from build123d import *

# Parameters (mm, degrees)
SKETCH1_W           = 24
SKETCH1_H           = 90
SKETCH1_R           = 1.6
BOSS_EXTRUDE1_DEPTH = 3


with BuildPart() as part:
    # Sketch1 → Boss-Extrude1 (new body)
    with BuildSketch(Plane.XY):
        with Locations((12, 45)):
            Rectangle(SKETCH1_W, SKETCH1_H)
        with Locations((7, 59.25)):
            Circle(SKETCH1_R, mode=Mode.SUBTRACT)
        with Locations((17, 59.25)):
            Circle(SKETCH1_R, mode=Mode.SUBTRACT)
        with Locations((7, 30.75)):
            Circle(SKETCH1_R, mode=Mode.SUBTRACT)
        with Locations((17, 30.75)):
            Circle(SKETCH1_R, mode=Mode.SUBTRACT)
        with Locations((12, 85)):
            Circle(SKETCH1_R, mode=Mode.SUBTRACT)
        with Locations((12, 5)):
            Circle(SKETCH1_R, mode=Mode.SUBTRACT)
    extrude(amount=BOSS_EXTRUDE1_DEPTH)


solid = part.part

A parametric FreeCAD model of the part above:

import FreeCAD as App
import Part
import Sketcher
Q = App.Units.Quantity

doc = App.newDocument("Part")
body = doc.addObject("PartDesign::Body", "Body")

# Sketch on XY plane
sketch1 = body.newObject("Sketcher::SketchObject", "Sketch")
sketch1.AttachmentSupport = (doc.getObject("XY_Plane"), [""])
sketch1.MapMode = "FlatFace"
sketch1.addGeometry([
    Part.LineSegment(App.Vector(0, 90, 0), App.Vector(0, 0, 0)),  # 0
    Part.LineSegment(App.Vector(0, 0, 0), App.Vector(24, 0, 0)),  # 1
    Part.LineSegment(App.Vector(24, 0, 0), App.Vector(24, 90, 0)),  # 2
    Part.LineSegment(App.Vector(24, 90, 0), App.Vector(0, 90, 0)),  # 3
    Part.Circle(App.Vector(7, 30.75, 0), App.Vector(0, 0, 1), 1.6),  # 4
    Part.Circle(App.Vector(12, 5, 0), App.Vector(0, 0, 1), 1.6),  # 5
    Part.Circle(App.Vector(17, 30.75, 0), App.Vector(0, 0, 1), 1.6),  # 6
    Part.Circle(App.Vector(7, 59.25, 0), App.Vector(0, 0, 1), 1.6),  # 7
    Part.Circle(App.Vector(17, 59.25, 0), App.Vector(0, 0, 1), 1.6),  # 8
    Part.Circle(App.Vector(12, 85, 0), App.Vector(0, 0, 1), 1.6),  # 9
], False)
sketch1.addConstraint([
    Sketcher.Constraint("Coincident", 0, 2, 1, 1),
    Sketcher.Constraint("Coincident", 1, 2, 2, 1),
    Sketcher.Constraint("Coincident", 2, 2, 3, 1),
    Sketcher.Constraint("Coincident", 3, 2, 0, 1),
    Sketcher.Constraint("Vertical", 0),
    Sketcher.Constraint("Horizontal", 1),
    Sketcher.Constraint("Vertical", 2),
    Sketcher.Constraint("Horizontal", 3),
    Sketcher.Constraint("Coincident", 0, 2, -1, 1),
    Sketcher.Constraint("Equal", 4, 5),
    Sketcher.Constraint("Equal", 5, 6),
    Sketcher.Constraint("Equal", 6, 7),
    Sketcher.Constraint("Equal", 7, 8),
    Sketcher.Constraint("Equal", 8, 9),
    Sketcher.Constraint("Horizontal", 4, 3, 6, 3),
    Sketcher.Constraint("Horizontal", 7, 3, 8, 3),
    Sketcher.Constraint("Vertical", 4, 3, 7, 3),
    Sketcher.Constraint("Vertical", 6, 3, 8, 3),
    Sketcher.Constraint("Vertical", 5, 3, 9, 3),
    Sketcher.Constraint("Diameter", 4, Q("3.2 mm")),
    Sketcher.Constraint("DistanceX", 1, 1, 1, 2, Q("24 mm")),
    Sketcher.Constraint("DistanceY", 0, 2, 0, 1, Q("90 mm")),
    Sketcher.Constraint("DistanceX", -1, 1, 4, 3, Q("7 mm")),
    Sketcher.Constraint("DistanceX", -1, 1, 5, 3, Q("12 mm")),
    Sketcher.Constraint("DistanceY", -1, 1, 5, 3, Q("5 mm")),
    Sketcher.Constraint("DistanceX", -1, 1, 6, 3, Q("17 mm")),
    Sketcher.Constraint("DistanceY", -1, 1, 9, 3, Q("85 mm")),
    Sketcher.Constraint("DistanceY", 4, 3, 7, 3, Q("28.5 mm")),
    Sketcher.Constraint("DistanceY", -1, 1, 4, 3, Q("30.75 mm")),
])
pad1 = body.newObject("PartDesign::Pad", "Pad")
pad1.Profile = sketch1
pad1.Length = 3

doc.recompute()
